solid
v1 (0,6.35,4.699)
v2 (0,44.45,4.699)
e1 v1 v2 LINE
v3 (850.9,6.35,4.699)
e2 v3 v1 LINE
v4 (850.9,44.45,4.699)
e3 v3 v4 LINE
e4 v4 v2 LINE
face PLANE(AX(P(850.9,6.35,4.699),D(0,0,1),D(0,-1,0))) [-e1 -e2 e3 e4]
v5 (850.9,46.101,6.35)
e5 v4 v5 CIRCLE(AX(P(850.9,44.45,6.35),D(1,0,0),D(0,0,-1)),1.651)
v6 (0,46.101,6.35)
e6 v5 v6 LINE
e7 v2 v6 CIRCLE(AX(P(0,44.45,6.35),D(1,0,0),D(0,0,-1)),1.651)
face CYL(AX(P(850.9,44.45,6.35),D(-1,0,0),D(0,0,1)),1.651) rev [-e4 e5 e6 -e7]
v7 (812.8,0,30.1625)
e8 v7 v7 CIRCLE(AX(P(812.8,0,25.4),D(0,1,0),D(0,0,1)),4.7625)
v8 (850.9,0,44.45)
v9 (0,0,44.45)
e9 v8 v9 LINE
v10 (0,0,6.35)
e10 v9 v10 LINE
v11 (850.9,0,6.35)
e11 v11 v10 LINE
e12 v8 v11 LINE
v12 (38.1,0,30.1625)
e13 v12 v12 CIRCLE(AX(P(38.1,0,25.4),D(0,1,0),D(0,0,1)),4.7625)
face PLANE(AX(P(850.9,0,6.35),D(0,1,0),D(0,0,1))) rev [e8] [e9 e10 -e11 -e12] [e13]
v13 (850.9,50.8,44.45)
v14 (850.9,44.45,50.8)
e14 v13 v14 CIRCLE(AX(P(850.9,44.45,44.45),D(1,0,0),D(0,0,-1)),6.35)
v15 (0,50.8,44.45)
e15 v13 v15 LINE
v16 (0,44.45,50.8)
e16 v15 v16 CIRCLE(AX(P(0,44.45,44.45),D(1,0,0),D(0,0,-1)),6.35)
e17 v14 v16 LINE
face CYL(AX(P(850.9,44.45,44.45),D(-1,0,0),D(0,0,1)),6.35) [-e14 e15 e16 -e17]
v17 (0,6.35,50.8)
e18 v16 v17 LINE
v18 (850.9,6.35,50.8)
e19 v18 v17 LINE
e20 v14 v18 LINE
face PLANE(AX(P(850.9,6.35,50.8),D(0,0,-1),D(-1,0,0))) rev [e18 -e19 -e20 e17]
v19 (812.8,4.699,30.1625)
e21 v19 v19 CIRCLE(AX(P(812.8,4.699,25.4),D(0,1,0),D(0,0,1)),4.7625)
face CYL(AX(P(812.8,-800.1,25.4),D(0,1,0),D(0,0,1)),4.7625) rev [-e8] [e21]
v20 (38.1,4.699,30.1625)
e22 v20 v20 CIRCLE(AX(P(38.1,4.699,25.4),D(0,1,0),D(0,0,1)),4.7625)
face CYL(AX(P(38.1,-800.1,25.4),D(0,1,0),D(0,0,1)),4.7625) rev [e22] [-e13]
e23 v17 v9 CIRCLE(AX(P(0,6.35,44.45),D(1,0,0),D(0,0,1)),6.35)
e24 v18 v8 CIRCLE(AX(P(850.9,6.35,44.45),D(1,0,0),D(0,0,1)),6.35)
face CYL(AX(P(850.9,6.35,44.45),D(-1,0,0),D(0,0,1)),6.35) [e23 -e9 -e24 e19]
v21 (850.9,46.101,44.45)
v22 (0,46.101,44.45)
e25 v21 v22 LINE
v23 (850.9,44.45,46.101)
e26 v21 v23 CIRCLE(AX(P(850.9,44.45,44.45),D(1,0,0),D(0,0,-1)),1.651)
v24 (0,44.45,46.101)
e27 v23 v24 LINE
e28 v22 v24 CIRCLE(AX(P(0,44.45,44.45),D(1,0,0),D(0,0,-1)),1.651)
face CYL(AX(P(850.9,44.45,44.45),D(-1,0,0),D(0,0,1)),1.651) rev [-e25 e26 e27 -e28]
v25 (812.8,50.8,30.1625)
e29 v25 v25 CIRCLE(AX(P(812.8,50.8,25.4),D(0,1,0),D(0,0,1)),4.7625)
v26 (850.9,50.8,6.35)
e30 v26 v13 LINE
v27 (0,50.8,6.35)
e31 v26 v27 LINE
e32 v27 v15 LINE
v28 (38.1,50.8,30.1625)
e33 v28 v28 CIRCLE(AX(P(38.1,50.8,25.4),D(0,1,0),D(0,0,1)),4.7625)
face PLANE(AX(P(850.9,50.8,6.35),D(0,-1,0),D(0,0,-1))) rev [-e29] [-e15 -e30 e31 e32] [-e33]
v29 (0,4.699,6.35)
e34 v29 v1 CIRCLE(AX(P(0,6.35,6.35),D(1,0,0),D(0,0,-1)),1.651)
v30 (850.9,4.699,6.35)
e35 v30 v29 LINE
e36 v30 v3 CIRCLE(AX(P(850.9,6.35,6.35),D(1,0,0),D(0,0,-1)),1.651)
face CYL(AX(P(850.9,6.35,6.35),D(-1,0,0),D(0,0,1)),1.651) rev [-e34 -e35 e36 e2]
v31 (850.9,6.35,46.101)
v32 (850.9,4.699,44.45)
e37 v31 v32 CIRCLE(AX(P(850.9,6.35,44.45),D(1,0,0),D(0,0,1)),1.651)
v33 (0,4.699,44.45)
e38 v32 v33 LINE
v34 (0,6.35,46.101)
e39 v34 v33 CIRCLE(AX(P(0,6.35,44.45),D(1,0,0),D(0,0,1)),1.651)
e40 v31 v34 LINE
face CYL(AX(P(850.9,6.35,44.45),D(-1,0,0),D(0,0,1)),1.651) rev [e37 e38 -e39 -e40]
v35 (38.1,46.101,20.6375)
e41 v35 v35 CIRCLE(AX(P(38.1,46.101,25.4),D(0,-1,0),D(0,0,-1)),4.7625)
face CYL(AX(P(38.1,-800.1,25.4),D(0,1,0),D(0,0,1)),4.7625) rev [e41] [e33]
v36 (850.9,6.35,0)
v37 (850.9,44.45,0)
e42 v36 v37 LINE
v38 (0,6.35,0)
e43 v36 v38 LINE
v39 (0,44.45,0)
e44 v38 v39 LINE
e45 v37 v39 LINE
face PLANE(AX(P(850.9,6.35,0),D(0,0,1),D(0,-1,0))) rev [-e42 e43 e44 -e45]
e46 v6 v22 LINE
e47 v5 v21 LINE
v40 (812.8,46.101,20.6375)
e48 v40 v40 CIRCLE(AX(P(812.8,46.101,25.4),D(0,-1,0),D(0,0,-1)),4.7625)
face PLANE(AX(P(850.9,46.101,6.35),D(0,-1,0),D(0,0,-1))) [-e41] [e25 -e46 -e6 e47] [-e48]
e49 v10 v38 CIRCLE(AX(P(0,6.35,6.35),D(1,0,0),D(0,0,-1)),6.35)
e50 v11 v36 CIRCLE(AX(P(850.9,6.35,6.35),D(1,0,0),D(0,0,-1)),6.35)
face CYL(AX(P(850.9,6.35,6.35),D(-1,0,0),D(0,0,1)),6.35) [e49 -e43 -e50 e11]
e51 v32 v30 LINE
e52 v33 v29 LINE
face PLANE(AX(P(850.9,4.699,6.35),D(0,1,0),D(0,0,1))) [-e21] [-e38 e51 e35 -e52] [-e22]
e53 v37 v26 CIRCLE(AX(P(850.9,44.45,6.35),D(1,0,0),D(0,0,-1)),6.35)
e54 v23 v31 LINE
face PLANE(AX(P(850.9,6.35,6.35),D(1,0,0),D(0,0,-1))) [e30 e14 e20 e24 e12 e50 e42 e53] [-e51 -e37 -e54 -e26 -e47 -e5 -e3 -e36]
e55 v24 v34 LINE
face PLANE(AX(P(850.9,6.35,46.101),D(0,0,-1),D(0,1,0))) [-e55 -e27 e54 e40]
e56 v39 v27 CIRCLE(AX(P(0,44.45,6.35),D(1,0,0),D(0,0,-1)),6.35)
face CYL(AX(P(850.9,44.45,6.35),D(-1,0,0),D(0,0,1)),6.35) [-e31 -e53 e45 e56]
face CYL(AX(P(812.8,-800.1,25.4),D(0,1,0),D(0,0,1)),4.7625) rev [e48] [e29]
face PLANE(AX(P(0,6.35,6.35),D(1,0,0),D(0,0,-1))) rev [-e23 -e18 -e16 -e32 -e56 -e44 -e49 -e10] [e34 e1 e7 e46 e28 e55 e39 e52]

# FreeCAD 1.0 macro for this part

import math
import FreeCAD as App
import Part
import Sketcher
from FreeCAD import Vector
Q = App.Units.Quantity

doc = App.newDocument("Part")
body = doc.addObject("PartDesign::Body", "Body")

sketch1 = body.newObject("Sketcher::SketchObject", "Sketch")
sketch1.AttachmentSupport = (doc.getObject("YZ_Plane"), [""])
sketch1.MapMode = "FlatFace"
sketch1.addGeometry([
    Part.LineSegment(Vector(0, 44.5, 0), Vector(0, 6.3, 0)),
    Part.ArcOfCircle(Part.Circle(Vector(6.3, 6.3, 0), Vector(0, 0, 1), 6.3), math.radians(180), math.radians(270)),
    Part.LineSegment(Vector(6.3, 0, 0), Vector(44.5, 0, 0)),
    Part.ArcOfCircle(Part.Circle(Vector(44.5, 6.3, 0), Vector(0, 0, 1), 6.3), math.radians(-90), math.radians(0)),
    Part.LineSegment(Vector(50.8, 6.3, 0), Vector(50.8, 44.5, 0)),
    Part.ArcOfCircle(Part.Circle(Vector(44.5, 44.5, 0), Vector(0, 0, 1), 6.3), math.radians(0), math.radians(90)),
    Part.LineSegment(Vector(44.5, 50.8, 0), Vector(6.3, 50.8, 0)),
    Part.ArcOfCircle(Part.Circle(Vector(6.3, 44.5, 0), Vector(0, 0, 1), 6.3), math.radians(90), math.radians(180)),
    Part.LineSegment(Vector(4.7, 6.3, 0), Vector(4.7, 44.5, 0)),
    Part.ArcOfCircle(Part.Circle(Vector(6.3, 44.5, 0), Vector(0, 0, 1), 1.7), math.radians(90), math.radians(180)),
    Part.LineSegment(Vector(6.3, 46.1, 0), Vector(44.5, 46.1, 0)),
    Part.ArcOfCircle(Part.Circle(Vector(44.5, 44.5, 0), Vector(0, 0, 1), 1.7), math.radians(0), math.radians(90)),
    Part.LineSegment(Vector(46.1, 44.5, 0), Vector(46.1, 6.3, 0)),
    Part.ArcOfCircle(Part.Circle(Vector(44.5, 6.3, 0), Vector(0, 0, 1), 1.7), math.radians(-90), math.radians(0)),
    Part.LineSegment(Vector(44.5, 4.7, 0), Vector(6.3, 4.7, 0)),
    Part.ArcOfCircle(Part.Circle(Vector(6.3, 6.3, 0), Vector(0, 0, 1), 1.7), math.radians(180), math.radians(270)),
], False)
sketch1.addConstraint([
    Sketcher.Constraint("Tangent", 0, 2, 1, 1),
    Sketcher.Constraint("Tangent", 1, 2, 2, 1),
    Sketcher.Constraint("Tangent", 2, 2, 3, 1),
    Sketcher.Constraint("Tangent", 3, 2, 4, 1),
    Sketcher.Constraint("Tangent", 4, 2, 5, 1),
    Sketcher.Constraint("Tangent", 5, 2, 6, 1),
    Sketcher.Constraint("Tangent", 6, 2, 7, 1),
    Sketcher.Constraint("Tangent", 7, 2, 0, 1),
    Sketcher.Constraint("Tangent", 8, 2, 9, 2),
    Sketcher.Constraint("Tangent", 9, 1, 10, 1),
    Sketcher.Constraint("Tangent", 10, 2, 11, 2),
    Sketcher.Constraint("Tangent", 11, 1, 12, 1),
    Sketcher.Constraint("Tangent", 12, 2, 13, 2),
    Sketcher.Constraint("Tangent", 13, 1, 14, 1),
    Sketcher.Constraint("Tangent", 14, 2, 15, 2),
    Sketcher.Constraint("Tangent", 15, 1, 8, 1),
    Sketcher.Constraint("Vertical", 0),
    Sketcher.Constraint("Horizontal", 2),
    Sketcher.Constraint("Vertical", 4),
    Sketcher.Constraint("Horizontal", 6),
    Sketcher.Constraint("Vertical", 8),
    Sketcher.Constraint("Horizontal", 10),
    Sketcher.Constraint("Vertical", 12),
    Sketcher.Constraint("Horizontal", 14),
    Sketcher.Constraint("Coincident", 9, 3, 7, 3),
    Sketcher.Constraint("Coincident", 11, 3, 5, 3),
    Sketcher.Constraint("Coincident", 13, 3, 3, 3),
    Sketcher.Constraint("Equal", 1, 3),
    Sketcher.Constraint("Equal", 3, 5),
    Sketcher.Constraint("Equal", 5, 7),
    Sketcher.Constraint("Equal", 13, 15),
    Sketcher.Constraint("PointOnObject", 0, 2, -2),
    Sketcher.Constraint("PointOnObject", 1, 2, -1),
    Sketcher.Constraint("Equal", 14, 0),
    Sketcher.Constraint("Radius", 1, Q("0.25 in")),
    Sketcher.Constraint("DistanceX", 2, 1, 2, 2, Q("1.5 in")),
    Sketcher.Constraint("Radius", 9, Q("0.065 in")),
])
pad1 = body.newObject("PartDesign::Pad", "Pad")
pad1.Profile = sketch1
pad1.Length = Q("33.5 in")

sketch2 = body.newObject("Sketcher::SketchObject", "Sketch001")
sketch2.AttachmentSupport = (doc.getObject("XZ_Plane"), [""])
sketch2.MapMode = "FlatFace"
sketch2.AttachmentOffset = App.Placement(Vector(0, 0, -2 * 25.4), App.Rotation())
sketch2.addGeometry([
    Part.Circle(Vector(38.1, 25.4, 0), Vector(0, 0, 1), 4.8),
    Part.Circle(Vector(812.8, 25.4, 0), Vector(0, 0, 1), 4.8),
], False)
sketch2.addConstraint([
    Sketcher.Constraint("Equal", 0, 1),
    Sketcher.Constraint("Horizontal", 0, 3, 1, 3),
    Sketcher.Constraint("Diameter", 0, Q("0.375 in")),
    Sketcher.Constraint("DistanceY", -1, 1, 0, 3, Q("1 in")),
    Sketcher.Constraint("DistanceX", -1, 1, 1, 3, Q("32 in")),
    Sketcher.Constraint("DistanceX", -1, 1, 0, 3, Q("1.5 in")),
])
pocket1 = body.newObject("PartDesign::Pocket", "Pocket")
pocket1.Profile = sketch2
pocket1.Length = Q("33.5 in")
pocket1.Reversed = True

doc.recompute()
